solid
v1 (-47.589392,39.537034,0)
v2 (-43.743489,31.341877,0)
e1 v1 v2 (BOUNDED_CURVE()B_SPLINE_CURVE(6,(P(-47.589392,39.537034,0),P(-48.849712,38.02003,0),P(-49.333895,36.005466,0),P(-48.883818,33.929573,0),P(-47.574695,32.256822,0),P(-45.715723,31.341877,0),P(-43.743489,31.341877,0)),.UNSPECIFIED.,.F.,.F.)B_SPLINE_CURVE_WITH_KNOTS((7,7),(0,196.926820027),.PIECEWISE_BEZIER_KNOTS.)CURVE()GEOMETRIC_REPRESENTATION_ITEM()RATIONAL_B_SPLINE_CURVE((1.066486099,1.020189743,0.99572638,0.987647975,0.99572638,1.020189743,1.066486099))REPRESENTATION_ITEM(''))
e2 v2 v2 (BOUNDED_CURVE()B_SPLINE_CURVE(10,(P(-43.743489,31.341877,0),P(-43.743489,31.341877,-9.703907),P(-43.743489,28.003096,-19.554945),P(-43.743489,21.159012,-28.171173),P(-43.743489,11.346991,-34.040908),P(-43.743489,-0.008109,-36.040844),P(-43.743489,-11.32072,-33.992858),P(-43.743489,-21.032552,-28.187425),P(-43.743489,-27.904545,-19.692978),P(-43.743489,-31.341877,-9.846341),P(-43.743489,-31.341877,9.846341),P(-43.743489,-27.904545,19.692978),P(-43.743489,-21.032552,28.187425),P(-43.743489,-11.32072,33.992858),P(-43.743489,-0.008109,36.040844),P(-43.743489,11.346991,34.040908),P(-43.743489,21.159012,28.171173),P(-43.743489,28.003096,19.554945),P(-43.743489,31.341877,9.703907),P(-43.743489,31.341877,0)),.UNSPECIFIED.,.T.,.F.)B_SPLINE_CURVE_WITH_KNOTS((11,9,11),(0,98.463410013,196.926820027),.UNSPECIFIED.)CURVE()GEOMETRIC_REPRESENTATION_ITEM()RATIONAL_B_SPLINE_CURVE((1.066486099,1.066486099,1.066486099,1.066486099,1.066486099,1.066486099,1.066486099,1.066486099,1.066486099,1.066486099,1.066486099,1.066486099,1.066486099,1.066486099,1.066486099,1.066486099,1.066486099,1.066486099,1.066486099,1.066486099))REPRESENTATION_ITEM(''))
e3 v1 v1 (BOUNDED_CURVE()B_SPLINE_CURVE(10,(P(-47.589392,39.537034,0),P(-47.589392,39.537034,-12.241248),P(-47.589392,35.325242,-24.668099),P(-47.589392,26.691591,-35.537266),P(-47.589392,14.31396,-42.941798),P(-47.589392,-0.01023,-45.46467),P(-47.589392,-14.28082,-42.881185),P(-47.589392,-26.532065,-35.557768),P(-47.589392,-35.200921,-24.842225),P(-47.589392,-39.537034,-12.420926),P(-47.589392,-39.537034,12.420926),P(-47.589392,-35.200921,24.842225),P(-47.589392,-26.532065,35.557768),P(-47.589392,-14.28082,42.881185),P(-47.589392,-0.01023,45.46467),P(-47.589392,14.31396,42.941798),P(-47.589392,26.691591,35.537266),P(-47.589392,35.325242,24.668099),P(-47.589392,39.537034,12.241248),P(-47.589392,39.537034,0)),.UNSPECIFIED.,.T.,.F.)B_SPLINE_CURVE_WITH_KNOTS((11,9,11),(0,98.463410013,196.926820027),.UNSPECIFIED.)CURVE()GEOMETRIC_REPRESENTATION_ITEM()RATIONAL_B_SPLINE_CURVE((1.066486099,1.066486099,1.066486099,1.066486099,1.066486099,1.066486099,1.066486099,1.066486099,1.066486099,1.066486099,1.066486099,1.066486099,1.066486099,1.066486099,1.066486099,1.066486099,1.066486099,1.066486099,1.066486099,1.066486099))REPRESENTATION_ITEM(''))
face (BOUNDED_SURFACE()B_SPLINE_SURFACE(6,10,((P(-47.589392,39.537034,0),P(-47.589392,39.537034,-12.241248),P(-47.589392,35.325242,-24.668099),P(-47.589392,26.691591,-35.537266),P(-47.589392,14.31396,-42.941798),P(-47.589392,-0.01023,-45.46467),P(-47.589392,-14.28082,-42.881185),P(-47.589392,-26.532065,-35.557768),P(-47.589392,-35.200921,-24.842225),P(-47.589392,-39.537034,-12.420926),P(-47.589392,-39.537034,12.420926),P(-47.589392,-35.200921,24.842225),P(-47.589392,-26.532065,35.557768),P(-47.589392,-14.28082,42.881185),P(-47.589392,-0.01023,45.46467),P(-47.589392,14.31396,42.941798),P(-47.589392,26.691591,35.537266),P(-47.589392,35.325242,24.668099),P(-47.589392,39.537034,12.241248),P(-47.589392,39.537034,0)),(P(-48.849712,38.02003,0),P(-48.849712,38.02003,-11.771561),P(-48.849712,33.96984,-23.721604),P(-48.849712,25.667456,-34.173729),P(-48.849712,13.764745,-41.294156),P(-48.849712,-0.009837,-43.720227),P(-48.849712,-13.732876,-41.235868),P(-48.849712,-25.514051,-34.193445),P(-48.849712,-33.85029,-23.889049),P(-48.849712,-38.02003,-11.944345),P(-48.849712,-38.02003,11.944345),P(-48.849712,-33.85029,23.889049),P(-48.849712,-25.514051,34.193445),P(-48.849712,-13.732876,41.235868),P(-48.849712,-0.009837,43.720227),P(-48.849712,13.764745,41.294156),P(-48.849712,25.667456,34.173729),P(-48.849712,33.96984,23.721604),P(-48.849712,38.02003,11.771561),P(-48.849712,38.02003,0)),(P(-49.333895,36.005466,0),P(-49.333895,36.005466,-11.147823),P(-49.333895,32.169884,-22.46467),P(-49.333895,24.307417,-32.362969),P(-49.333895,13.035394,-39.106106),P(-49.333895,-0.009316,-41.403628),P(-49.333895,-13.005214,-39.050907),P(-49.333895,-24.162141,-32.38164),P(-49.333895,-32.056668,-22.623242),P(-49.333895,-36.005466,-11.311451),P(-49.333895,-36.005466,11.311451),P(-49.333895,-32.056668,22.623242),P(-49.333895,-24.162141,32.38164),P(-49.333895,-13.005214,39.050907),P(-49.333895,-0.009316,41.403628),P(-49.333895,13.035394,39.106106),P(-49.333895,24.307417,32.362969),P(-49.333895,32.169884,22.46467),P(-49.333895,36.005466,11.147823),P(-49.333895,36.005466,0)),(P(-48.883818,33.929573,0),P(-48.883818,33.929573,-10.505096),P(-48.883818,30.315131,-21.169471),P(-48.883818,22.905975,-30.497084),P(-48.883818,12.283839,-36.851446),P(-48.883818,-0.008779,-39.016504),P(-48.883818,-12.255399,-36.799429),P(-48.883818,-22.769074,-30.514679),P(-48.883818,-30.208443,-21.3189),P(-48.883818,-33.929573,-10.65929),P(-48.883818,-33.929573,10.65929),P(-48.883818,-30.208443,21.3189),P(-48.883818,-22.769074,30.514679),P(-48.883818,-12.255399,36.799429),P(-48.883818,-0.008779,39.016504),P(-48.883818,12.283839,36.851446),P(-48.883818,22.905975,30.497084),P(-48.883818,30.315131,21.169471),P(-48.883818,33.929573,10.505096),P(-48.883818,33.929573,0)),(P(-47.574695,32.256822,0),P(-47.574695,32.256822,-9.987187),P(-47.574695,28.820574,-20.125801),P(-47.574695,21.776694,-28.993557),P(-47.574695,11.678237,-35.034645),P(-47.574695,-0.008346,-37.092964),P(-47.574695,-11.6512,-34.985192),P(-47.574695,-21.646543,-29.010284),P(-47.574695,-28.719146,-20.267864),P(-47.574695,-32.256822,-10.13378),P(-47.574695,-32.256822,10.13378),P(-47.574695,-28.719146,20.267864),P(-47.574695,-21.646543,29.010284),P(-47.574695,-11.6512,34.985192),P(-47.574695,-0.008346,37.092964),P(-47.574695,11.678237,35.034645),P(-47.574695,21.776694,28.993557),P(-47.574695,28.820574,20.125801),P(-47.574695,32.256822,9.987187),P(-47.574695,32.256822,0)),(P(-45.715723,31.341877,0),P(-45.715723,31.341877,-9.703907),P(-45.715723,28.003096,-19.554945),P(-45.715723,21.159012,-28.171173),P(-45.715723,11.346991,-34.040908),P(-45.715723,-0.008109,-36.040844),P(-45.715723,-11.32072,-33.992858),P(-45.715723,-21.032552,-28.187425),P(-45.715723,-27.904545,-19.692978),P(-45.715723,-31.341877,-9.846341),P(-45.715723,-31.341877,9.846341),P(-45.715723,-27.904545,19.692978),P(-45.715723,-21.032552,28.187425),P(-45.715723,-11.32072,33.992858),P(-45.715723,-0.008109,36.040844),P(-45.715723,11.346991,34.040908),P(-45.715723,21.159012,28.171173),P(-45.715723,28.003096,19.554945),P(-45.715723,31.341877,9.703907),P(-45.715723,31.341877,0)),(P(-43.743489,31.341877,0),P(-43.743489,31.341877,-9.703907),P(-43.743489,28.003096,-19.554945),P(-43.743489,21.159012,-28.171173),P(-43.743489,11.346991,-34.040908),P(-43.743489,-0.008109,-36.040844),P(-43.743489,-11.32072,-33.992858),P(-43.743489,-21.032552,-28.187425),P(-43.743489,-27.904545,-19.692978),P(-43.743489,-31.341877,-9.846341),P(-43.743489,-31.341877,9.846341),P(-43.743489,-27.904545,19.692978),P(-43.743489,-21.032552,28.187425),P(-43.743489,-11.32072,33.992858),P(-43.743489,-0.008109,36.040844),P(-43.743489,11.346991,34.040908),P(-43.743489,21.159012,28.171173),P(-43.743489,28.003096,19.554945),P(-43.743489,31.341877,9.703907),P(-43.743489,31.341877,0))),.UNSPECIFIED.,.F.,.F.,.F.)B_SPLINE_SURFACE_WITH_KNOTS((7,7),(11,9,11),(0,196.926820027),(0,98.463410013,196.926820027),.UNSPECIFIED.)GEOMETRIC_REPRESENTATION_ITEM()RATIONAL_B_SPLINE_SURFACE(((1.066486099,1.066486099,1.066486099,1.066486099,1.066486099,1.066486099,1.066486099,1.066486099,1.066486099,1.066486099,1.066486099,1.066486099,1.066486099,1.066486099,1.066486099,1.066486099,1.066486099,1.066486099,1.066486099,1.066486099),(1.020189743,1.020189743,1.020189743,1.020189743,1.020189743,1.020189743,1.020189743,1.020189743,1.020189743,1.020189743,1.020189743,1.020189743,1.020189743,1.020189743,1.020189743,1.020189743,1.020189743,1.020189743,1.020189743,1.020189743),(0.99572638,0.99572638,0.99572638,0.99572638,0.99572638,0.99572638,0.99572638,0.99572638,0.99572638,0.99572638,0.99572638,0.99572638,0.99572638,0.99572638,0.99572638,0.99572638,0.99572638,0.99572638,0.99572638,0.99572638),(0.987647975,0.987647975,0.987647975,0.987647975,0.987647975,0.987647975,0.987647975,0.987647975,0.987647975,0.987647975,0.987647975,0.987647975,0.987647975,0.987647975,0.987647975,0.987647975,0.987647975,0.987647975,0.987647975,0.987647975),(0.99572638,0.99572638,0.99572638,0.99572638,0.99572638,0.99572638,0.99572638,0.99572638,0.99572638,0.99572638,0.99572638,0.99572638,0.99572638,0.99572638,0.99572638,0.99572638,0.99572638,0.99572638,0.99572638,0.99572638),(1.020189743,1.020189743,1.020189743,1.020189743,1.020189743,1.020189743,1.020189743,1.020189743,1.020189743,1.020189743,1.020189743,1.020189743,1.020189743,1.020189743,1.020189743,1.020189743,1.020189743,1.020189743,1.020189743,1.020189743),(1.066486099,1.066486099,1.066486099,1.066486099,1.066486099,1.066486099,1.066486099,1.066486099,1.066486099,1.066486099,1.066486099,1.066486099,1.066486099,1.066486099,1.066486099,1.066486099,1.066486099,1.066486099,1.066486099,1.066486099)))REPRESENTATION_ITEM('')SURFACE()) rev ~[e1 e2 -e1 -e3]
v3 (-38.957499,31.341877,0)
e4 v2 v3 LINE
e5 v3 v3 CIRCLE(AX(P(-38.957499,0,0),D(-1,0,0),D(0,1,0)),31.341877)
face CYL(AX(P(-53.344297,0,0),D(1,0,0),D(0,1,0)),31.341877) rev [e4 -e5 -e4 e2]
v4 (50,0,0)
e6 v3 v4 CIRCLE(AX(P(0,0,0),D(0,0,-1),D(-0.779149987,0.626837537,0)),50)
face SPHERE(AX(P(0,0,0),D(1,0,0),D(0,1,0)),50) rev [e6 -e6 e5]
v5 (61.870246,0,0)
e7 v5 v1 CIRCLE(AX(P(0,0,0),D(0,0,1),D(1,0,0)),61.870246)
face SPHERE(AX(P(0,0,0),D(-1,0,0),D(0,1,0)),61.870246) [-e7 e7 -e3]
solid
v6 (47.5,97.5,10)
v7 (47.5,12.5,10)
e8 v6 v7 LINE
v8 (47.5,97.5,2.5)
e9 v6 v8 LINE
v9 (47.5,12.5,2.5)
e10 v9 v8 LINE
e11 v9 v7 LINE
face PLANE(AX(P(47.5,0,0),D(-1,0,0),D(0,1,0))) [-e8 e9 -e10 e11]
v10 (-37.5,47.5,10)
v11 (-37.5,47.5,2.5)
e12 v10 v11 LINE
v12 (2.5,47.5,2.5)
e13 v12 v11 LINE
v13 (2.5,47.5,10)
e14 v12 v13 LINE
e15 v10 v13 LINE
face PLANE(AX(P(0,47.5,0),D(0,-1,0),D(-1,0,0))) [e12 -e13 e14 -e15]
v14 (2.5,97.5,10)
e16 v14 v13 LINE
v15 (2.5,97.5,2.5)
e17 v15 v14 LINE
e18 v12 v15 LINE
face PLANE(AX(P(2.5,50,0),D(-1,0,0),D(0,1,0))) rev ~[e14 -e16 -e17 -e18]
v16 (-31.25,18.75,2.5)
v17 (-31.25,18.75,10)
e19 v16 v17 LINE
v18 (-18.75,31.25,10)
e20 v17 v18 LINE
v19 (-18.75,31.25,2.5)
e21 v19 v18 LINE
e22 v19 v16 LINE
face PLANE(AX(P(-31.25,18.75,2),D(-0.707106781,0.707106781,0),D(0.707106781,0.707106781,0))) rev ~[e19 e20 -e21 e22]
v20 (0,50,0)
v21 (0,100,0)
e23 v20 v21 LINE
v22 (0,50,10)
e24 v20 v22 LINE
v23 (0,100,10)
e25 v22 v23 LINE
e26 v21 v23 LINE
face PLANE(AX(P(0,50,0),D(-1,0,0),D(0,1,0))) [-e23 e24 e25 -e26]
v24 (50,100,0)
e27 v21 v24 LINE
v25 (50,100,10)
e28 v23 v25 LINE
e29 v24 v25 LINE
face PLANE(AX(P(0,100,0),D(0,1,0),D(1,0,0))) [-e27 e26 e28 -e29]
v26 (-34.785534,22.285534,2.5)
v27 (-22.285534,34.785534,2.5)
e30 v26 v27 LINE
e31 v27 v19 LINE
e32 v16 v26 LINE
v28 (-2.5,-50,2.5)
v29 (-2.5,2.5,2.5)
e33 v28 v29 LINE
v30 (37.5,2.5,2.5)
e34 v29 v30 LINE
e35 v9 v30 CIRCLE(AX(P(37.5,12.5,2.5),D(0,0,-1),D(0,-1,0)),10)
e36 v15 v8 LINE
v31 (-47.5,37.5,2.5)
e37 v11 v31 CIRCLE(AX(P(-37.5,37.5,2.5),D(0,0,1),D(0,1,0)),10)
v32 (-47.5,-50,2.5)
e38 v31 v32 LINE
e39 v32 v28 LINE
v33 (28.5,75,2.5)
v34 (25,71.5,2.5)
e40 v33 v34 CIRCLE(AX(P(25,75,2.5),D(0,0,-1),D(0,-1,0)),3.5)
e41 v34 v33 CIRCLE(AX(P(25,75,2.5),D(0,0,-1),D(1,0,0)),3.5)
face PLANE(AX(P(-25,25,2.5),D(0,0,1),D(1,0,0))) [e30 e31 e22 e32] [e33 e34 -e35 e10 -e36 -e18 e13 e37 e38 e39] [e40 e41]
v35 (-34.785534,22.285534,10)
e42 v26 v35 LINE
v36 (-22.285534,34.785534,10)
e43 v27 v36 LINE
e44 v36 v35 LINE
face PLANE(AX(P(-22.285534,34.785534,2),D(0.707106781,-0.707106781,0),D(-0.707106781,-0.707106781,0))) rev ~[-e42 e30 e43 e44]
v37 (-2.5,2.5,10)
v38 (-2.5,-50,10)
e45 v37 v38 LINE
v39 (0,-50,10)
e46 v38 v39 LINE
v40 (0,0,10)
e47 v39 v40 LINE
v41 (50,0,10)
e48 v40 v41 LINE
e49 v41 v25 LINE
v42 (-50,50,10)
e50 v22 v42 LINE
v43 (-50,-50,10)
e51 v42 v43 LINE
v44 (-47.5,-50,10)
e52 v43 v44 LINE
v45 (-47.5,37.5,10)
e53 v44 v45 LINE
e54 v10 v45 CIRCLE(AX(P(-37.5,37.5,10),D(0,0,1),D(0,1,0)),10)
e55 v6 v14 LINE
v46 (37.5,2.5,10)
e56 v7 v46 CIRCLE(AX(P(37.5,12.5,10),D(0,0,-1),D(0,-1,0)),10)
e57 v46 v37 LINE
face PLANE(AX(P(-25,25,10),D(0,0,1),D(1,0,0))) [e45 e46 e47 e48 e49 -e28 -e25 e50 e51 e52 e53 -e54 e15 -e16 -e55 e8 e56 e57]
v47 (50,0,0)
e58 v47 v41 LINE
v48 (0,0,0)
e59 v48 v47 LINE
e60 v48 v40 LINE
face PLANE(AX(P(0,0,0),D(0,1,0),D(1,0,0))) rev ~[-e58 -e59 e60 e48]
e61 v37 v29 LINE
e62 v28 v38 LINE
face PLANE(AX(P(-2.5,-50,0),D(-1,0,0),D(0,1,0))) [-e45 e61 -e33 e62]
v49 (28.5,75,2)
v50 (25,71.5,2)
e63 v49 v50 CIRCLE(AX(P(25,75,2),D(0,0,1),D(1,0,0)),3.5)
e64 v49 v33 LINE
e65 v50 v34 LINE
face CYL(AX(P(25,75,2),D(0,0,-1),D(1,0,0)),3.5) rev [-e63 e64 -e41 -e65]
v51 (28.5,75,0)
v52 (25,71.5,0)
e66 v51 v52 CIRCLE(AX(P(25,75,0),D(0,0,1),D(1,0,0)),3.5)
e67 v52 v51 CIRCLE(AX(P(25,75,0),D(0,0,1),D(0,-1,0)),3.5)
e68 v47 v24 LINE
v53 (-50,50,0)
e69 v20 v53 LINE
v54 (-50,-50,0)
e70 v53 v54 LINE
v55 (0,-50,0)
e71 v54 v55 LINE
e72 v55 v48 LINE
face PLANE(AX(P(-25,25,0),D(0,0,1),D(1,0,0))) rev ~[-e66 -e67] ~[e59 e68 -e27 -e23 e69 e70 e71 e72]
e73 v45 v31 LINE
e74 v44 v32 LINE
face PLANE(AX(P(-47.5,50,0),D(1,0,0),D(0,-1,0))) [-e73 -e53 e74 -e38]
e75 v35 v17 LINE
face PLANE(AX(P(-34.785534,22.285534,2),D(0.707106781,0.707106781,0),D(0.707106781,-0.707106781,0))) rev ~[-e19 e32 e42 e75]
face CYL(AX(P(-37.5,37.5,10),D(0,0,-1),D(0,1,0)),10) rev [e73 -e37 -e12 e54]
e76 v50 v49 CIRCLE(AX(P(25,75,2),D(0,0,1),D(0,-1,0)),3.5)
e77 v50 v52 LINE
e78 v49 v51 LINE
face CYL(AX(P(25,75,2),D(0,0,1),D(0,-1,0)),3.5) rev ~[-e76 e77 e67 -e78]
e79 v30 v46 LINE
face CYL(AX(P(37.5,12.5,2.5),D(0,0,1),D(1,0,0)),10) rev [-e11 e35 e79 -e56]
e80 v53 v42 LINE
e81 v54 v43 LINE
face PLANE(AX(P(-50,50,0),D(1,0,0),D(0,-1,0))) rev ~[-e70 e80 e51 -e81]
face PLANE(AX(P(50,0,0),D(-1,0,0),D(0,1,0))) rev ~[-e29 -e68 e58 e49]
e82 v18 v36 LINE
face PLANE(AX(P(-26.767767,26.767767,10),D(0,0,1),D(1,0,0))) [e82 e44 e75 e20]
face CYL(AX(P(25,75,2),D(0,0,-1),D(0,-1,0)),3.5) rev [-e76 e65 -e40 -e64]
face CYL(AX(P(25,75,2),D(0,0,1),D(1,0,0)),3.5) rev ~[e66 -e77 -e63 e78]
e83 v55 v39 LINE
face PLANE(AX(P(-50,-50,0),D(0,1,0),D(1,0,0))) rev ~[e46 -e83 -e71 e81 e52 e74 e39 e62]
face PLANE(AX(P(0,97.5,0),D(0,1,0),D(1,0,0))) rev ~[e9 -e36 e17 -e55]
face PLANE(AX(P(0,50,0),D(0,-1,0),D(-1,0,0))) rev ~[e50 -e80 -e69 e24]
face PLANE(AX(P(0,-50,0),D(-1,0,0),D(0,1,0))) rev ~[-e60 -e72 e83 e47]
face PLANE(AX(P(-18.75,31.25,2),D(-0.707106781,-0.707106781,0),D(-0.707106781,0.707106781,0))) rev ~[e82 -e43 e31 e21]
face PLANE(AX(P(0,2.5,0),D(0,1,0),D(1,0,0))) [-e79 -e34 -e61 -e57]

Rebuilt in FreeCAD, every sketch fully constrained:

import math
import FreeCAD as App
import Part
import Sketcher
Q = App.Units.Quantity


def edges_at(feature, points):
    """Names of the edges that pass closest to the given points."""
    edges = feature.Shape.Edges
    near = lambda p: min(range(len(edges)), key=lambda i: edges[i].distToShape(Part.Vertex(*p))[0])
    return sorted({f"Edge{near(p) + 1}" for p in points})


def faces_at(feature, points):
    """Names of the faces that lie closest to the given points."""
    faces = feature.Shape.Faces
    near = lambda p: min(range(len(faces)), key=lambda i: faces[i].distToShape(Part.Vertex(*p))[0])
    return sorted({f"Face{near(p) + 1}" for p in points})


def add_polygon(sketch, points):
    """Adds a closed chain of lines whose ends are joined by coincident constraints."""
    first, n = sketch.GeometryCount, len(points)
    for a, b in zip(points, points[1:] + points[:1]):
        sketch.addGeometry(Part.LineSegment(App.Vector(*a, 0), App.Vector(*b, 0)), False)
    for i in range(n):
        sketch.addConstraint(Sketcher.Constraint("Coincident", first + i, 2, first + (i + 1) % n, 1))

doc = App.newDocument("Part")
body = doc.addObject("PartDesign::Body", "Body")

sketch1 = body.newObject("Sketcher::SketchObject", "Sketch")
sketch1.AttachmentSupport = (doc.getObject("XY_Plane"), [""])
sketch1.MapMode = "FlatFace"
add_polygon(sketch1, [(-50, 50), (-50, -50), (0, -50), (0, 0), (50, 0), (50, 100), (0, 100), (0, 50)])
sketch1.addConstraint([
    Sketcher.Constraint("Vertical", 0),
    Sketcher.Constraint("Horizontal", 1),
    Sketcher.Constraint("Vertical", 2),
    Sketcher.Constraint("Horizontal", 3),
    Sketcher.Constraint("Vertical", 4),
    Sketcher.Constraint("Horizontal", 5),
    Sketcher.Constraint("Vertical", 6),
    Sketcher.Constraint("Horizontal", 7),
    Sketcher.Constraint("Coincident", 2, 2, -1, 1),
    Sketcher.Constraint("Symmetric", 1, 2, 6, 2, -1, 1),
    Sketcher.Constraint("Equal", 1, 3),
    Sketcher.Constraint("Equal", 7, 2),
    Sketcher.Constraint("Equal", 0, 4),
    Sketcher.Constraint("DistanceX", 1, 1, 1, 2, 50.0),
])
pad1 = body.newObject("PartDesign::Pad", "Pad")
pad1.Profile = sketch1
pad1.Length = 10
doc.recompute()

thickness = body.newObject("PartDesign::Thickness", "Thickness")
thickness.Base = (pad1, faces_at(pad1, [(0, 25, 10), (-25, -50, 5)]))
thickness.Value = 2.5
thickness.Reversed = True
thickness.Join = "Intersection"

sketch2 = body.newObject("Sketcher::SketchObject", "Sketch001")
sketch2.AttachmentSupport = (doc.getObject("XY_Plane"), [""])
sketch2.MapMode = "FlatFace"
sketch2.AttachmentOffset = App.Placement(App.Vector(0, 0, 2), App.Rotation())
add_polygon(sketch2, [(-35, 22), (-31, 19), (-19, 31), (-22, 35)])
sketch2.addConstraint([
    Sketcher.Constraint("Perpendicular", 0, 1),
    Sketcher.Constraint("Perpendicular", 1, 2),
    Sketcher.Constraint("Perpendicular", 2, 3),
    Sketcher.Constraint("Angle", 0, Q("-45 deg")),
    Sketcher.Constraint("Distance", 0, 5.0),
    Sketcher.Constraint("DistanceX", 0, 2, 1, 2, 12.5),
    Sketcher.Constraint("DistanceX", 0, 2, -1, 1, 31.25),
    Sketcher.Constraint("DistanceY", -1, 1, 0, 2, 18.75),
])
pad2 = body.newObject("PartDesign::Pad", "Pad001")
pad2.Profile = sketch2
pad2.Length = 8
doc.recompute()

fillet = body.newObject("PartDesign::Fillet", "Fillet")
fillet.Base = (pad2, edges_at(pad2, [(-47.5, 47.5, 6.25), (47.5, 2.5, 6.25)]))
fillet.Radius = 10

sketch3 = body.newObject("Sketcher::SketchObject", "Sketch002")
sketch3.AttachmentSupport = (doc.getObject("XY_Plane"), [""])
sketch3.MapMode = "FlatFace"
sketch3.AttachmentOffset = App.Placement(App.Vector(0, 0, 2), App.Rotation())
sketch3.addGeometry([
    Part.ArcOfCircle(Part.Circle(App.Vector(25, 75, 0), App.Vector(0, 0, 1), 3.5), math.radians(0), math.radians(270)),
    Part.ArcOfCircle(Part.Circle(App.Vector(25, 75, 0), App.Vector(0, 0, 1), 3.5), math.radians(-90), math.radians(0)),
], False)
sketch3.addConstraint([
    Sketcher.Constraint("Tangent", 0, 1, 1, 2),
    Sketcher.Constraint("Coincident", 1, 1, 0, 2),
    Sketcher.Constraint("Horizontal", 1, 3, 0, 1),
    Sketcher.Constraint("Vertical", 0, 3, 1, 1),
    Sketcher.Constraint("Radius", 0, 3.5),
    Sketcher.Constraint("DistanceX", -1, 1, 0, 3, 25.0),
    Sketcher.Constraint("DistanceY", -1, 1, 0, 3, 75.0),
])
pocket1 = body.newObject("PartDesign::Pocket", "Pocket")
pocket1.Profile = sketch3
pocket1.Length = 25
pocket1.Midplane = True
body2 = doc.addObject("PartDesign::Body", "Body001")

sketch4 = body2.newObject("Sketcher::SketchObject", "Sketch003")
sketch4.AttachmentSupport = (doc.getObject("XY_Plane001"), [""])
sketch4.MapMode = "FlatFace"
sketch4.addGeometry([
    Part.ArcOfCircle(Part.Circle(App.Vector(0, 0, 0), App.Vector(0, 0, 1), 50), math.radians(0), math.radians(141)),
    Part.LineSegment(App.Vector(50, 0, 0), App.Vector(62, 0, 0)),
    Part.ArcOfCircle(Part.Circle(App.Vector(0, 0, 0), App.Vector(0, 0, 1), 62), math.radians(0), math.radians(150)),
    Part.LineSegment(App.Vector(-53, 31, 0), App.Vector(-39, 31, 0)),
], False)
sketch4.addConstraint([
    Sketcher.Constraint("Coincident", 0, 1, 1, 1),
    Sketcher.Constraint("Coincident", 1, 2, 2, 1),
    Sketcher.Constraint("Coincident", 2, 2, 3, 1),
    Sketcher.Constraint("Coincident", 3, 2, 0, 2),
    Sketcher.Constraint("Horizontal", 1),
    Sketcher.Constraint("Horizontal", 3),
    Sketcher.Constraint("Coincident", 0, 3, -1, 1),
    Sketcher.Constraint("Coincident", 2, 3, -1, 1),
    Sketcher.Constraint("PointOnObject", 0, 1, -1),
    Sketcher.Constraint("Radius", 0, 50.0),
    Sketcher.Constraint("Radius", 2, 61.870246),
    Sketcher.Constraint("DistanceX", 3, 2, -1, 1, 38.957499),
])
revolution = body2.newObject("PartDesign::Revolution", "Revolution")
revolution.Profile = sketch4
revolution.ReferenceAxis = (sketch4, ["H_Axis"])
revolution.Angle = 360
doc.recompute()

fillet2 = body2.newObject("PartDesign::Fillet", "Fillet001")
fillet2.Base = (revolution, edges_at(revolution, [(-53.344, -31.342, 0)]))
fillet2.Radius = 5

doc.recompute()
